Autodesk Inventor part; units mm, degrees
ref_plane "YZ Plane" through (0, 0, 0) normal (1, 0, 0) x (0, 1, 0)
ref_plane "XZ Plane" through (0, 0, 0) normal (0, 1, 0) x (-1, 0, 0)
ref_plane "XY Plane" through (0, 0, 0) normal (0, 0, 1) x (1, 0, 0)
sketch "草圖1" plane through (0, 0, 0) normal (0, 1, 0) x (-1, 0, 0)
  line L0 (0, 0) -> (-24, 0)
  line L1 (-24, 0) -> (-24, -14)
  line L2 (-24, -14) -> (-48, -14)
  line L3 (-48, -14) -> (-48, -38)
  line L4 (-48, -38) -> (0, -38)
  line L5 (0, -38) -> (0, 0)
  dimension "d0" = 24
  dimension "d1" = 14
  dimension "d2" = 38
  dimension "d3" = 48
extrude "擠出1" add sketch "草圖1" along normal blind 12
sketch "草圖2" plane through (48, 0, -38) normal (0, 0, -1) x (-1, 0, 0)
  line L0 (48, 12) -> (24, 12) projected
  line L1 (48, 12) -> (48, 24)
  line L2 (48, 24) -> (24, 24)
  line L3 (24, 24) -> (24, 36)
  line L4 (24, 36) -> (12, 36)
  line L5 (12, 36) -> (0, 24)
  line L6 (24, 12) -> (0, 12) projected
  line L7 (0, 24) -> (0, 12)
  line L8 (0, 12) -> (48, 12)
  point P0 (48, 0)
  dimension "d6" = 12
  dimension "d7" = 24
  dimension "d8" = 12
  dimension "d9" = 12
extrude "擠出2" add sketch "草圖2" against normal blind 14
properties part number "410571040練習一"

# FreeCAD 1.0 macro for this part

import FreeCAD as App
import Part
import Sketcher

doc = App.newDocument("Part")
body = doc.addObject("PartDesign::Body", "Body")

# Sketch on XZ plane
sketch1 = doc.addObject("Sketcher::SketchObject", "Sketch")
body.addObject(sketch1)
sketch1.AttachmentSupport = (doc.XZ_Plane, [""])
sketch1.MapMode = "FlatFace"
sketch1.addGeometry([
    Part.LineSegment(App.Vector(0, -38, 0), App.Vector(0, 0, 0)),  # 0
    Part.LineSegment(App.Vector(0, 0, 0), App.Vector(24, 0, 0)),  # 1
    Part.LineSegment(App.Vector(24, 0, 0), App.Vector(24, -14, 0)),  # 2
    Part.LineSegment(App.Vector(24, -14, 0), App.Vector(48, -14, 0)),  # 3
    Part.LineSegment(App.Vector(48, -14, 0), App.Vector(48, -38, 0)),  # 4
    Part.LineSegment(App.Vector(48, -38, 0), App.Vector(0, -38, 0)),  # 5
], False)
sketch1.addConstraint([
    Sketcher.Constraint("Coincident", 0, 2, 1, 1),
    Sketcher.Constraint("Coincident", 1, 2, 2, 1),
    Sketcher.Constraint("Coincident", 2, 2, 3, 1),
    Sketcher.Constraint("Coincident", 3, 2, 4, 1),
    Sketcher.Constraint("Coincident", 4, 2, 5, 1),
    Sketcher.Constraint("Coincident", 5, 2, 0, 1),
    Sketcher.Constraint("Vertical", 0),
    Sketcher.Constraint("Horizontal", 1),
    Sketcher.Constraint("Vertical", 2),
    Sketcher.Constraint("Horizontal", 3),
    Sketcher.Constraint("Vertical", 4),
    Sketcher.Constraint("Horizontal", 5),
    Sketcher.Constraint("Coincident", 0, 2, -1, 1),
    Sketcher.Constraint("Equal", 1, 3),
    Sketcher.Constraint("Equal", 3, 4),
    Sketcher.Constraint("DistanceX", 1, 1, 1, 2, 24.0),
    Sketcher.Constraint("DistanceY", 0, 1, 0, 2, 38.0),
])
pad1 = doc.addObject("PartDesign::Pad", "Pad")
body.addObject(pad1)
pad1.Profile = sketch1
pad1.Length = 12
pad1.Reversed = True

# Sketch on XY plane
sketch2 = doc.addObject("Sketcher::SketchObject", "Sketch001")
body.addObject(sketch2)
sketch2.AttachmentSupport = (doc.XY_Plane, [""])
sketch2.MapMode = "FlatFace"
sketch2.AttachmentOffset = App.Placement(App.Vector(0, 0, -38), App.Rotation())
sketch2.addGeometry([
    Part.LineSegment(App.Vector(48, 12, 0), App.Vector(0, 12, 0)),  # 0
    Part.LineSegment(App.Vector(0, 12, 0), App.Vector(0, 24, 0)),  # 1
    Part.LineSegment(App.Vector(0, 24, 0), App.Vector(24, 24, 0)),  # 2
    Part.LineSegment(App.Vector(24, 24, 0), App.Vector(24, 36, 0)),  # 3
    Part.LineSegment(App.Vector(24, 36, 0), App.Vector(36, 36, 0)),  # 4
    Part.LineSegment(App.Vector(36, 36, 0), App.Vector(48, 24, 0)),  # 5
    Part.LineSegment(App.Vector(48, 24, 0), App.Vector(48, 12, 0)),  # 6
], False)
sketch2.addConstraint([
    Sketcher.Constraint("Coincident", 0, 2, 1, 1),
    Sketcher.Constraint("Coincident", 1, 2, 2, 1),
    Sketcher.Constraint("Coincident", 2, 2, 3, 1),
    Sketcher.Constraint("Coincident", 3, 2, 4, 1),
    Sketcher.Constraint("Coincident", 4, 2, 5, 1),
    Sketcher.Constraint("Coincident", 5, 2, 6, 1),
    Sketcher.Constraint("Coincident", 6, 2, 0, 1),
    Sketcher.Constraint("Horizontal", 0),
    Sketcher.Constraint("Vertical", 1),
    Sketcher.Constraint("Horizontal", 2),
    Sketcher.Constraint("Vertical", 3),
    Sketcher.Constraint("Horizontal", 4),
    Sketcher.Constraint("Vertical", 6),
    Sketcher.Constraint("PointOnObject", 0, 2, -2),
    Sketcher.Constraint("Horizontal", 2, 2, 5, 2),
    Sketcher.Constraint("Equal", 4, 1),
    Sketcher.Constraint("Equal", 1, 3),
    Sketcher.Constraint("DistanceX", 2, 1, 2, 2, 24.0),
    Sketcher.Constraint("DistanceX", 4, 1, 4, 2, 12.0),
    Sketcher.Constraint("DistanceY", -1, 1, 0, 2, 12.0),
    Sketcher.Constraint("DistanceX", 4, 2, 5, 2, 12.0),
])
pad2 = doc.addObject("PartDesign::Pad", "Pad001")
body.addObject(pad2)
pad2.Profile = sketch2
pad2.Length = 14

doc.recompute()
